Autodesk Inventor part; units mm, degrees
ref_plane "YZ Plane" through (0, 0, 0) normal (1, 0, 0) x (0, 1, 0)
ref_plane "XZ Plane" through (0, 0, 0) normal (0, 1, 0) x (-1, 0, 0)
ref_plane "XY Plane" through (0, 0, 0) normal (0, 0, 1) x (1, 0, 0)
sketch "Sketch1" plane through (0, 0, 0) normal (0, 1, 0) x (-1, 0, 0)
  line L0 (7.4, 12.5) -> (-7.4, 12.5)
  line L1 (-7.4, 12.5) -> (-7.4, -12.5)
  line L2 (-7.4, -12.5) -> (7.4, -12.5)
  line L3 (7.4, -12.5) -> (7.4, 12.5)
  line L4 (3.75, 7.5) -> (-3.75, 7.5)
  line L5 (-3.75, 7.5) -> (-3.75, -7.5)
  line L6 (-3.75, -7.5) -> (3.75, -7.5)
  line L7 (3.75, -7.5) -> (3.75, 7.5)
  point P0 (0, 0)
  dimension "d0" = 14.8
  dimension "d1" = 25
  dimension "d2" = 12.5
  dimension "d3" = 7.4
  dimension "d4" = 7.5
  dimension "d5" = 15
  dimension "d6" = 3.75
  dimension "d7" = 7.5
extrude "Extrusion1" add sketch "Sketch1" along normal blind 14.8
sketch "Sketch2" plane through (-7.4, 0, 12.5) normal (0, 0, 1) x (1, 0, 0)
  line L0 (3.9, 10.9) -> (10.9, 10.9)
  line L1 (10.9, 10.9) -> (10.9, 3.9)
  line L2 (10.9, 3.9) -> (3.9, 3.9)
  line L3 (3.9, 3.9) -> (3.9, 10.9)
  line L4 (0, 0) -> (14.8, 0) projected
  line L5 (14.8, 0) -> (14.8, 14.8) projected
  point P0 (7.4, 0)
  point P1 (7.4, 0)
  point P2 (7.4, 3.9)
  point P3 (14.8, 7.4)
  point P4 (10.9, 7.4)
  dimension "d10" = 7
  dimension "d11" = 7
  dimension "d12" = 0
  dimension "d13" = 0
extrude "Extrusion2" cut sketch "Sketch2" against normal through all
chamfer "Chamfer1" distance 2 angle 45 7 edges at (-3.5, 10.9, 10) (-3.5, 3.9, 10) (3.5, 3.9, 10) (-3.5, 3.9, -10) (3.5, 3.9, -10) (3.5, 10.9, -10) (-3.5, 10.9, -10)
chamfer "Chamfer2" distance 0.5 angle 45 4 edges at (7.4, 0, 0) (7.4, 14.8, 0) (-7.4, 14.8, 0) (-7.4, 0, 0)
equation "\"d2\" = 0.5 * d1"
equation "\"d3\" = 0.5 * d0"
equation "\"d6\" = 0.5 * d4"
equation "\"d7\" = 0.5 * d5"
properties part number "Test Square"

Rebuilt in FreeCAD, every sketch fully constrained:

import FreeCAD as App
import Part
import Sketcher

V = App.Vector


def edges_at(feature, points):
    """Names of the edges that pass closest to the given points."""
    edges = feature.Shape.Edges
    near = lambda p: min(range(len(edges)), key=lambda i: edges[i].distToShape(Part.Vertex(*p))[0])
    return sorted({f"Edge{near(p) + 1}" for p in points})

doc = App.newDocument("Part")
body = doc.addObject("PartDesign::Body", "Body")

sketch1 = doc.addObject("Sketcher::SketchObject", "Sketch")
body.addObject(sketch1)
sketch1.AttachmentSupport = (doc.XZ_Plane, [""])
sketch1.MapMode = "FlatFace"
sketch1.addGeometry([
    Part.LineSegment(V(-7.4, -12.5, 0), V(-7.4, 12.5, 0)),
    Part.LineSegment(V(-7.4, 12.5, 0), V(7.4, 12.5, 0)),
    Part.LineSegment(V(7.4, 12.5, 0), V(7.4, -12.5, 0)),
    Part.LineSegment(V(7.4, -12.5, 0), V(-7.4, -12.5, 0)),
    Part.LineSegment(V(3.75, 7.5, 0), V(-3.75, 7.5, 0)),
    Part.LineSegment(V(-3.75, 7.5, 0), V(-3.75, -7.5, 0)),
    Part.LineSegment(V(-3.75, -7.5, 0), V(3.75, -7.5, 0)),
    Part.LineSegment(V(3.75, -7.5, 0), V(3.75, 7.5, 0)),
], False)
sketch1.addConstraint([
    Sketcher.Constraint("Coincident", 0, 2, 1, 1),
    Sketcher.Constraint("Coincident", 1, 2, 2, 1),
    Sketcher.Constraint("Coincident", 2, 2, 3, 1),
    Sketcher.Constraint("Coincident", 3, 2, 0, 1),
    Sketcher.Constraint("Coincident", 4, 2, 5, 1),
    Sketcher.Constraint("Coincident", 5, 2, 6, 1),
    Sketcher.Constraint("Coincident", 6, 2, 7, 1),
    Sketcher.Constraint("Coincident", 7, 2, 4, 1),
    Sketcher.Constraint("Vertical", 0),
    Sketcher.Constraint("Horizontal", 1),
    Sketcher.Constraint("Vertical", 2),
    Sketcher.Constraint("Horizontal", 3),
    Sketcher.Constraint("Horizontal", 4),
    Sketcher.Constraint("Vertical", 5),
    Sketcher.Constraint("Horizontal", 6),
    Sketcher.Constraint("Vertical", 7),
    Sketcher.Constraint("Symmetric", 0, 2, 2, 2, -1, 1),
    Sketcher.Constraint("Symmetric", 4, 2, 6, 2, -1, 1),
    Sketcher.Constraint("DistanceY", 0, 1, 0, 2, 25.0),
    Sketcher.Constraint("DistanceY", 5, 2, 5, 1, 15.0),
    Sketcher.Constraint("DistanceX", 1, 1, 1, 2, 14.8),
    Sketcher.Constraint("DistanceX", 4, 2, 4, 1, 7.5),
])
pad1 = doc.addObject("PartDesign::Pad", "Pad")
body.addObject(pad1)
pad1.Profile = sketch1
pad1.Length = 14.8
pad1.Reversed = True

sketch2 = doc.addObject("Sketcher::SketchObject", "Sketch001")
body.addObject(sketch2)
sketch2.AttachmentSupport = (doc.XY_Plane, [""])
sketch2.MapMode = "FlatFace"
sketch2.AttachmentOffset = App.Placement(V(0, 0, 12.5), App.Rotation())
sketch2.addGeometry([
    Part.LineSegment(V(3.5, 10.9, 0), V(-3.5, 10.9, 0)),
    Part.LineSegment(V(-3.5, 10.9, 0), V(-3.5, 3.9, 0)),
    Part.LineSegment(V(-3.5, 3.9, 0), V(3.5, 3.9, 0)),
    Part.LineSegment(V(3.5, 3.9, 0), V(3.5, 10.9, 0)),
], False)
sketch2.addConstraint([
    Sketcher.Constraint("Coincident", 0, 2, 1, 1),
    Sketcher.Constraint("Coincident", 1, 2, 2, 1),
    Sketcher.Constraint("Coincident", 2, 2, 3, 1),
    Sketcher.Constraint("Coincident", 3, 2, 0, 1),
    Sketcher.Constraint("Horizontal", 0),
    Sketcher.Constraint("Vertical", 1),
    Sketcher.Constraint("Horizontal", 2),
    Sketcher.Constraint("Vertical", 3),
    Sketcher.Constraint("Equal", 2, 1),
    Sketcher.Constraint("DistanceX", 0, 2, 0, 1, 7.0),
    Sketcher.Constraint("DistanceX", 0, 2, -1, 1, 3.5),
    Sketcher.Constraint("DistanceY", -1, 1, 0, 2, 10.9),
])
pocket1 = doc.addObject("PartDesign::Pocket", "Pocket")
body.addObject(pocket1)
pocket1.Profile = sketch2
pocket1.Type = "ThroughAll"
doc.recompute()

chamfer = doc.addObject("PartDesign::Chamfer", "Chamfer")
body.addObject(chamfer)
chamfer.Base = (pocket1, edges_at(pocket1, [
    (-3.5, 10.9, 10),
    (-3.5, 3.9, 10),
    (3.5, 3.9, 10),
    (-3.5, 3.9, -10),
    (3.5, 3.9, -10),
    (3.5, 10.9, -10),
    (-3.5, 10.9, -10),
]))
chamfer.Size = 2
doc.recompute()

chamfer2 = doc.addObject("PartDesign::Chamfer", "Chamfer001")
body.addObject(chamfer2)
chamfer2.Base = (chamfer, edges_at(chamfer, [
    (7.4, 0, 0),
    (7.4, 14.8, 0),
    (-7.4, 14.8, 0),
    (-7.4, 0, 0),
]))
chamfer2.Size = 0.5

doc.recompute()
